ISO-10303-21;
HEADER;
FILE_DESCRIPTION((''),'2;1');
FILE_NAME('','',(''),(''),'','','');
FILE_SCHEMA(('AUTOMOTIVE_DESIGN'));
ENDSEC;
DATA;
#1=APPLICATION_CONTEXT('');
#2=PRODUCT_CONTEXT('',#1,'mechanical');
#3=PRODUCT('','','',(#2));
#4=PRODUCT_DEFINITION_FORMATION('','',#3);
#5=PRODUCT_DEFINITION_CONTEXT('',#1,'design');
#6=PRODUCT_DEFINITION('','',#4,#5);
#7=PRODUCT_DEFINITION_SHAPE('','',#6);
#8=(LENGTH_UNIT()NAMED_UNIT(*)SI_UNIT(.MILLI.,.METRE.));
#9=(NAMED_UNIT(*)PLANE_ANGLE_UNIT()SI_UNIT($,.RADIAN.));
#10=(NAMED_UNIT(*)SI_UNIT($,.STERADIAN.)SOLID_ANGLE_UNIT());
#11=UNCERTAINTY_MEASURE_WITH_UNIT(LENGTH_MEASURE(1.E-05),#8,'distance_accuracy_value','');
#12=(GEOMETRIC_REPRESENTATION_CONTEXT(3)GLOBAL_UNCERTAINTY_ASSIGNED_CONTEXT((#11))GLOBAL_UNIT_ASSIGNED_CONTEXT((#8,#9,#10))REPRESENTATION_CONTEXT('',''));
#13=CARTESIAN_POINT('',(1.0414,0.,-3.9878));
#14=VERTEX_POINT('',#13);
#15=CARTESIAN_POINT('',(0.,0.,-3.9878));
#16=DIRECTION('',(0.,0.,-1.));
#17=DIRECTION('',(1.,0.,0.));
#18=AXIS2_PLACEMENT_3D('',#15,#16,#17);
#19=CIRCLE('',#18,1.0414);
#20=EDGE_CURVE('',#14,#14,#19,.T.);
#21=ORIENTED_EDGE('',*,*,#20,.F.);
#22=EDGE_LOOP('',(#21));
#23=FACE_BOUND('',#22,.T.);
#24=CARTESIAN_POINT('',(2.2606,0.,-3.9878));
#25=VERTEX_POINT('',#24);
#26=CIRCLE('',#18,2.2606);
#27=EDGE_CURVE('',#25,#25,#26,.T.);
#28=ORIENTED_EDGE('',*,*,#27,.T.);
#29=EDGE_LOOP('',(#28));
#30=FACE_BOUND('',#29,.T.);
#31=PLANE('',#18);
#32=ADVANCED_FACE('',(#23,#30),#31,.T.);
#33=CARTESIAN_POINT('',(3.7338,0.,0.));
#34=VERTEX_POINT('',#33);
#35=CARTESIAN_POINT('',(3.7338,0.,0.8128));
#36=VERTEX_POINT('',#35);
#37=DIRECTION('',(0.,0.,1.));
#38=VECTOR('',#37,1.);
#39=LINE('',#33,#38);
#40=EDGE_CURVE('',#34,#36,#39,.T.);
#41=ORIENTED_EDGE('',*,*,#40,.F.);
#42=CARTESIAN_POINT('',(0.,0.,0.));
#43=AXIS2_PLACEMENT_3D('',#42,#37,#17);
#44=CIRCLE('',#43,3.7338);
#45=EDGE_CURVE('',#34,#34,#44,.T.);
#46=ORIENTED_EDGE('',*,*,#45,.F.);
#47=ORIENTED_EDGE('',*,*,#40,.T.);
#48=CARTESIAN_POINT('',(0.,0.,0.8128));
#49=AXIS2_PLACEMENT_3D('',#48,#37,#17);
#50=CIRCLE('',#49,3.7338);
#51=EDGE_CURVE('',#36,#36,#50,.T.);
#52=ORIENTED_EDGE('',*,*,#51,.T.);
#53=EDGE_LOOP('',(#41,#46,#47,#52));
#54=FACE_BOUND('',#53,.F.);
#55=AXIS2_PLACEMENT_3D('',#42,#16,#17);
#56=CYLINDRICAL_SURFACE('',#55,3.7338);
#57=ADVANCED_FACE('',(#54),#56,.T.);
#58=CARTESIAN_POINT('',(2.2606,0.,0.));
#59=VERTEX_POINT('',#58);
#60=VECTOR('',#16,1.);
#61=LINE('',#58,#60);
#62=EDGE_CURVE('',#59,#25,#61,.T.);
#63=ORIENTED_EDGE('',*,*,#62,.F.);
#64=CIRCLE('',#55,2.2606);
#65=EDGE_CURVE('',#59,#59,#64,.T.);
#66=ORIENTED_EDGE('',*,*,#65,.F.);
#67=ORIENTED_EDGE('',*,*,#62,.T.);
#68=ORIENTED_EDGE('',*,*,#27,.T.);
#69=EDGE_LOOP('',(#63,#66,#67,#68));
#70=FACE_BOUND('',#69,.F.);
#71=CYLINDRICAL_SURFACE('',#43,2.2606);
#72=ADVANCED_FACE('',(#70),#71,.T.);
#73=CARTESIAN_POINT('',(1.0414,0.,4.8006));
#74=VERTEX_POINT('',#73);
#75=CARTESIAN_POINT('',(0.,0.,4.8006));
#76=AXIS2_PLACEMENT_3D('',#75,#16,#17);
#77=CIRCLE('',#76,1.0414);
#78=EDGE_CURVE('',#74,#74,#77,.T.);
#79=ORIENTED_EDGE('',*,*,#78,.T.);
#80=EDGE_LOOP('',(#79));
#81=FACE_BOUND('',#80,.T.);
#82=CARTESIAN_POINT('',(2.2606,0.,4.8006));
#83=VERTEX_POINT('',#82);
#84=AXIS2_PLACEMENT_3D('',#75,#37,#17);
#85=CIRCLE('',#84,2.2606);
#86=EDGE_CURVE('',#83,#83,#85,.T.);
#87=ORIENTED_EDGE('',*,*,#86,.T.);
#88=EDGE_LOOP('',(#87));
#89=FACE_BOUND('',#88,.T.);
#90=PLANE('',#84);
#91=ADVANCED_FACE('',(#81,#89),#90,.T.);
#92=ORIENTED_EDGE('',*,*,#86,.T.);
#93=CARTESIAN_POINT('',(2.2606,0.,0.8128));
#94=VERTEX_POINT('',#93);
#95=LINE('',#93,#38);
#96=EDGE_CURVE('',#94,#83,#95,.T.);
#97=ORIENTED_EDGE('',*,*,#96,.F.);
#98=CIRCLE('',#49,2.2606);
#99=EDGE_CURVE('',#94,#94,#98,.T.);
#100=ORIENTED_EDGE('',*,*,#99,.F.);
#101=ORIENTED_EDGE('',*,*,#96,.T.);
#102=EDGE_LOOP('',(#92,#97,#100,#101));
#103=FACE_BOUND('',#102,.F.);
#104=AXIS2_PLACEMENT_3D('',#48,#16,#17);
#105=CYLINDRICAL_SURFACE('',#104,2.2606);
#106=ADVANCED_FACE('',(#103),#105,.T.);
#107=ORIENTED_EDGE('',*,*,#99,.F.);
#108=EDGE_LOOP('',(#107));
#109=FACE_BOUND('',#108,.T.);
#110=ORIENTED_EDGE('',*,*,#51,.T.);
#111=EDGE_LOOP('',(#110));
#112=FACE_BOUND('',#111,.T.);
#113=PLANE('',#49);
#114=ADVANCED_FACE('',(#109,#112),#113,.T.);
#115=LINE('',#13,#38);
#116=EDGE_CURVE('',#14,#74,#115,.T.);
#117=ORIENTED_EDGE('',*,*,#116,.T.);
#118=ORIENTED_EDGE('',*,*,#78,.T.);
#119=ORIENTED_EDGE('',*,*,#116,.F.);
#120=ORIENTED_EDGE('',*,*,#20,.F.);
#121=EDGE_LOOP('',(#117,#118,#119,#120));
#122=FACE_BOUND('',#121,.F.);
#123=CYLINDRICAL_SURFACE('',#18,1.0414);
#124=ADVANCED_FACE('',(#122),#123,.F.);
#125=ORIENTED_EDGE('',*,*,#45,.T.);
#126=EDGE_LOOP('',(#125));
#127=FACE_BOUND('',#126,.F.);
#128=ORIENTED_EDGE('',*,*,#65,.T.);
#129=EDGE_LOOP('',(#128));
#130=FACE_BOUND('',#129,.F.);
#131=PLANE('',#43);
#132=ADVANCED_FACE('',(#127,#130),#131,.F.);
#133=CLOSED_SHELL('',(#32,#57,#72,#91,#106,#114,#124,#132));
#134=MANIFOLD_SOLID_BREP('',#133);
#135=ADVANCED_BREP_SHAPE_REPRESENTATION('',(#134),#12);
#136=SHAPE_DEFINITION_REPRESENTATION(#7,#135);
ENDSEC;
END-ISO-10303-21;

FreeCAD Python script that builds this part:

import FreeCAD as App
import Part
import Sketcher
from FreeCAD import Vector
Q = App.Units.Quantity

doc = App.newDocument("Part")
body = doc.addObject("PartDesign::Body", "Body")

# Sketch on XY plane
sketch1 = doc.addObject("Sketcher::SketchObject", "Sketch")
body.addObject(sketch1)
sketch1.AttachmentSupport = (doc.XY_Plane, [""])
sketch1.MapMode = "FlatFace"
sketch1.addGeometry(Part.Circle(Vector(0, 0, 0), Vector(0, 0, 1), 3.7), False)
sketch1.addConstraint([
    Sketcher.Constraint("Coincident", 0, 3, -1, 1),
    Sketcher.Constraint("Diameter", 0, Q("0.294 in")),
])
pad1 = doc.addObject("PartDesign::Pad", "Pad")
body.addObject(pad1)
pad1.Profile = sketch1
pad1.Length = Q("0.032 in")

# Sketch on XY plane
sketch2 = doc.addObject("Sketcher::SketchObject", "Sketch001")
body.addObject(sketch2)
sketch2.AttachmentSupport = (doc.XY_Plane, [""])
sketch2.MapMode = "FlatFace"
sketch2.AttachmentOffset = App.Placement(Vector(0, 0, 0.032 * 25.4), App.Rotation())
sketch2.addGeometry(Part.Circle(Vector(0, 0, 0), Vector(0, 0, 1), 2.3), False)
sketch2.addConstraint([
    Sketcher.Constraint("Coincident", 0, 3, -1, 1),
    Sketcher.Constraint("Diameter", 0, Q("0.178 in")),
])
pad2 = doc.addObject("PartDesign::Pad", "Pad001")
body.addObject(pad2)
pad2.Profile = sketch2
pad2.Length = Q("0.157 in")

# Sketch on XY plane
sketch3 = doc.addObject("Sketcher::SketchObject", "Sketch002")
body.addObject(sketch3)
sketch3.AttachmentSupport = (doc.XY_Plane, [""])
sketch3.MapMode = "FlatFace"
sketch3.addGeometry(Part.Circle(Vector(0, 0, 0), Vector(0, 0, 1), 2.3), False)
sketch3.addConstraint([
    Sketcher.Constraint("Coincident", 0, 3, -1, 1),
    Sketcher.Constraint("Diameter", 0, Q("0.178 in")),
])
pad3 = doc.addObject("PartDesign::Pad", "Pad002")
body.addObject(pad3)
pad3.Profile = sketch3
pad3.Length = Q("0.157 in")
pad3.Reversed = True

# Sketch on XY plane
sketch4 = doc.addObject("Sketcher::SketchObject", "Sketch003")
body.addObject(sketch4)
sketch4.AttachmentSupport = (doc.XY_Plane, [""])
sketch4.MapMode = "FlatFace"
sketch4.AttachmentOffset = App.Placement(Vector(0, 0, -0.157 * 25.4), App.Rotation())
sketch4.addGeometry(Part.Circle(Vector(0, 0, 0), Vector(0, 0, 1), 1), False)
sketch4.addConstraint([
    Sketcher.Constraint("Coincident", 0, 3, -1, 1),
    Sketcher.Constraint("Diameter", 0, Q("0.082 in")),
])
pocket1 = doc.addObject("PartDesign::Pocket", "Pocket")
body.addObject(pocket1)
pocket1.Profile = sketch4
pocket1.Length = Q("1 in")
pocket1.Reversed = True

doc.recompute()
